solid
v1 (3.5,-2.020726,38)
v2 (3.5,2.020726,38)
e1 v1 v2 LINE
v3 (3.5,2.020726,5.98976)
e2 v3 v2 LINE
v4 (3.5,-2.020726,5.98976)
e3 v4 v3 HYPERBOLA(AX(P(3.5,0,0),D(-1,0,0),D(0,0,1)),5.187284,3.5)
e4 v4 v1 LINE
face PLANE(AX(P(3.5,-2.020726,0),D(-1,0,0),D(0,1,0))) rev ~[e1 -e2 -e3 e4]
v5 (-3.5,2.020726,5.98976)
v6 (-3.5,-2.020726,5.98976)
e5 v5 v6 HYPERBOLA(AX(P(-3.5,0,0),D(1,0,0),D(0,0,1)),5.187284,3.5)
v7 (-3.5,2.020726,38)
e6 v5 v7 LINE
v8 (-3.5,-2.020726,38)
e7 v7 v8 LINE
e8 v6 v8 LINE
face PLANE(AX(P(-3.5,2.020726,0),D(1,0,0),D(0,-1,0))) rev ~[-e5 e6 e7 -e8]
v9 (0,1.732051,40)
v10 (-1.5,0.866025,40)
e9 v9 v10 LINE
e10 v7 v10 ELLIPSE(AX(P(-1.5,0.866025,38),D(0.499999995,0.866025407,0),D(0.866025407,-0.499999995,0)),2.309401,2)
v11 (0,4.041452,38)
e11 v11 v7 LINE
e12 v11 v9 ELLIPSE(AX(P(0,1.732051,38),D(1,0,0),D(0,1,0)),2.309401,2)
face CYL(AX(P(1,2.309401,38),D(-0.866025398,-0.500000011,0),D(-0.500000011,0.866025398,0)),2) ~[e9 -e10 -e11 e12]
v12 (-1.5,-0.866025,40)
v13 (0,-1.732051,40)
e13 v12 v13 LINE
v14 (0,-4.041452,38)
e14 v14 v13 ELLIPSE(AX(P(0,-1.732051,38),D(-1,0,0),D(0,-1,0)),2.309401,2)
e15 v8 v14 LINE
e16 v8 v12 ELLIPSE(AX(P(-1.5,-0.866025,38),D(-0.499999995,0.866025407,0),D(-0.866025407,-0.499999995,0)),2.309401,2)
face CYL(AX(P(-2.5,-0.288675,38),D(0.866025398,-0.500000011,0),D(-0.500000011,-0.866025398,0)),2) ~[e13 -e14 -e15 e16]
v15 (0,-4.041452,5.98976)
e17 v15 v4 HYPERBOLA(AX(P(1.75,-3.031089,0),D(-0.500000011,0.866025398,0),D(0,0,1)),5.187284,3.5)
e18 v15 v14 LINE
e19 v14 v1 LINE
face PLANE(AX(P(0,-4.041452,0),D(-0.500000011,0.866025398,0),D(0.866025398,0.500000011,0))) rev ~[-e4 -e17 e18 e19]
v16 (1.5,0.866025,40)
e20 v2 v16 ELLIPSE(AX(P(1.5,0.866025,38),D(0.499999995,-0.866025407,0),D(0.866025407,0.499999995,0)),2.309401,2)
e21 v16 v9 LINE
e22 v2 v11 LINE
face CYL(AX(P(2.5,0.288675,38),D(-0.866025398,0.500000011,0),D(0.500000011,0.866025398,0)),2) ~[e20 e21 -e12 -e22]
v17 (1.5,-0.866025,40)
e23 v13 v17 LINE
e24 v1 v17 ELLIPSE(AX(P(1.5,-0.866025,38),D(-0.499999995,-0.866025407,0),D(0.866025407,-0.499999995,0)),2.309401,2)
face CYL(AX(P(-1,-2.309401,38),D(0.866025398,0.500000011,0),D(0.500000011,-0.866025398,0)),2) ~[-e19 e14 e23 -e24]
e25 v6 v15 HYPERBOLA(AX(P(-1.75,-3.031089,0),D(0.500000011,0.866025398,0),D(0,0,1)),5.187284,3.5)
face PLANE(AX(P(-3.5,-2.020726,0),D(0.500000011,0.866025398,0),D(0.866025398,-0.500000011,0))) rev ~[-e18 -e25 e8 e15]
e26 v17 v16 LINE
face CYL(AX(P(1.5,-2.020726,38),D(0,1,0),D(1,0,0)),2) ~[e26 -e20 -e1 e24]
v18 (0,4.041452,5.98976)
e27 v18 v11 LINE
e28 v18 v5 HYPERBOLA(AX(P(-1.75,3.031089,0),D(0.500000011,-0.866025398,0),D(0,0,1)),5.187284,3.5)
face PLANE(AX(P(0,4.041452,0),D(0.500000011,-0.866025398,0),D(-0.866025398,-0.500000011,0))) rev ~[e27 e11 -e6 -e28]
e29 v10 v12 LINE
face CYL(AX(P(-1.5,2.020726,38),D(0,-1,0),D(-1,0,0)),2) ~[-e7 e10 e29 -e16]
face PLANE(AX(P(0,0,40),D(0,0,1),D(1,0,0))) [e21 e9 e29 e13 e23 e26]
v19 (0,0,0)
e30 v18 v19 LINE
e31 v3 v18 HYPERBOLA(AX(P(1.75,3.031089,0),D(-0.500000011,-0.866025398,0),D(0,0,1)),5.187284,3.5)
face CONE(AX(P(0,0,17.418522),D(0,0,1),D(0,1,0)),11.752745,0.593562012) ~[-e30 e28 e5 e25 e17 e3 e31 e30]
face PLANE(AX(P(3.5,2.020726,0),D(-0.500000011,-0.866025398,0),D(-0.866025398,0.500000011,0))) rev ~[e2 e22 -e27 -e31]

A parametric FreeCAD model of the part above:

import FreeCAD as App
import Part
import Sketcher
from FreeCAD import Vector
Q = App.Units.Quantity


def edges_at(feature, points):
    """Names of the edges that pass closest to the given points."""
    edges = feature.Shape.Edges
    near = lambda p: min(range(len(edges)), key=lambda i: edges[i].distToShape(Part.Vertex(*p))[0])
    return sorted({f"Edge{near(p) + 1}" for p in points})

doc = App.newDocument("Part")
params = doc.addObject("Spreadsheet::Sheet", "Params")
for row, (alias, value) in enumerate([
    ("pad1_length", "40 mm"),
    ("fillet_radius", "2 mm"),
    ("groove_angle", "360 deg"),
], start=1):
    params.set(f"A{row}", alias)
    params.set(f"B{row}", "=" + value)
    params.setAlias(f"B{row}", alias)

body = doc.addObject("PartDesign::Body", "Body")

sketch1 = body.newObject("Sketcher::SketchObject", "Sketch")
sketch1.AttachmentSupport = (doc.getObject("XY_Plane"), [""])
sketch1.MapMode = "FlatFace"
sketch1.addGeometry(Part.LineSegment(Vector(-3.5, 2, 0), Vector(-3.5, -2, 0)), False)
sketch1.addGeometry(Part.LineSegment(Vector(-3.5, -2, 0), Vector(0, -4, 0)), False)
sketch1.addGeometry(Part.LineSegment(Vector(0, -4, 0), Vector(3.5, -2, 0)), False)
sketch1.addGeometry(Part.LineSegment(Vector(3.5, -2, 0), Vector(3.5, 2, 0)), False)
sketch1.addGeometry(Part.LineSegment(Vector(3.5, 2, 0), Vector(0, 4, 0)), False)
sketch1.addGeometry(Part.LineSegment(Vector(0, 4, 0), Vector(-3.5, 2, 0)), False)
sketch1.addConstraint(Sketcher.Constraint("Coincident", 0, 2, 1, 1))
sketch1.addConstraint(Sketcher.Constraint("Coincident", 1, 2, 2, 1))
sketch1.addConstraint(Sketcher.Constraint("Coincident", 2, 2, 3, 1))
sketch1.addConstraint(Sketcher.Constraint("Coincident", 3, 2, 4, 1))
sketch1.addConstraint(Sketcher.Constraint("Coincident", 4, 2, 5, 1))
sketch1.addConstraint(Sketcher.Constraint("Coincident", 5, 2, 0, 1))
sketch1.addConstraint(Sketcher.Constraint("Vertical", 0))
sketch1.addConstraint(Sketcher.Constraint("Vertical", 3))
sketch1.addConstraint(Sketcher.Constraint("Symmetric", 0, 2, 3, 2, -1, 1))
sketch1.addConstraint(Sketcher.Constraint("Symmetric", 1, 2, 4, 2, -1, 1))
sketch1.addConstraint(Sketcher.Constraint("PointOnObject", 1, 2, -2))
sketch1.addConstraint(Sketcher.Constraint("Parallel", 2, 5))
sketch1.addConstraint(Sketcher.Constraint("Horizontal", 0, 2, 2, 2))
sketch1.addConstraint(Sketcher.Constraint("Angle", 1, Q("-30.000001 deg")))
sketch1.addConstraint(Sketcher.Constraint("DistanceX", 0, 2, 2, 2, 7.0))
sketch1.addConstraint(Sketcher.Constraint("DistanceY", 0, 2, 0, 1, 4.041452))
pad1 = body.newObject("PartDesign::Pad", "Pad")
pad1.Profile = sketch1
pad1.setExpression("Length", "Params.pad1_length")
doc.recompute()

fillet = body.newObject("PartDesign::Fillet", "Fillet")
fillet.Base = (pad1, edges_at(pad1, [
    (-3.5, 0, 40),
    (-1.75, -3.031, 40),
    (1.75, -3.031, 40),
    (3.5, 0, 40),
    (1.75, 3.031, 40),
    (-1.75, 3.031, 40),
]))
fillet.setExpression("Radius", "Params.fillet_radius")

sketch2 = body.newObject("Sketcher::SketchObject", "Sketch001")
sketch2.AttachmentSupport = (doc.getObject("YZ_Plane"), [""])
sketch2.MapMode = "FlatFace"
sketch2.addGeometry(Part.LineSegment(Vector(12, 17, 0), Vector(0, 0, 0)), False)
sketch2.addGeometry(Part.LineSegment(Vector(0, 0, 0), Vector(0, -5, 0)), False)
sketch2.addGeometry(Part.LineSegment(Vector(0, -5, 0), Vector(20, -5, 0)), False)
sketch2.addGeometry(Part.LineSegment(Vector(20, -5, 0), Vector(22, 17, 0)), False)
sketch2.addGeometry(Part.LineSegment(Vector(22, 17, 0), Vector(12, 17, 0)), False)
sketch2.addConstraint(Sketcher.Constraint("Coincident", 0, 2, 1, 1))
sketch2.addConstraint(Sketcher.Constraint("Coincident", 1, 2, 2, 1))
sketch2.addConstraint(Sketcher.Constraint("Coincident", 2, 2, 3, 1))
sketch2.addConstraint(Sketcher.Constraint("Coincident", 3, 2, 4, 1))
sketch2.addConstraint(Sketcher.Constraint("Coincident", 4, 2, 0, 1))
sketch2.addConstraint(Sketcher.Constraint("Vertical", 1))
sketch2.addConstraint(Sketcher.Constraint("Horizontal", 2))
sketch2.addConstraint(Sketcher.Constraint("Horizontal", 4))
sketch2.addConstraint(Sketcher.Constraint("Coincident", 0, 2, -1, 1))
sketch2.addConstraint(Sketcher.Constraint("DistanceX", 2, 1, 2, 2, 19.7981))
sketch2.addConstraint(Sketcher.Constraint("DistanceX", 4, 2, 4, 1, 10.361441))
sketch2.addConstraint(Sketcher.Constraint("Distance", 0, 21.012661))
sketch2.addConstraint(Sketcher.Constraint("DistanceY", 1, 2, 1, 1, 5.376646))
sketch2.addConstraint(Sketcher.Constraint("DistanceY", -1, 1, 3, 2, 17.418522))
groove = body.newObject("PartDesign::Groove", "Groove")
groove.Profile = sketch2
groove.ReferenceAxis = (sketch2, ["V_Axis"])
groove.setExpression("Angle", "Params.groove_angle")

doc.recompute()
